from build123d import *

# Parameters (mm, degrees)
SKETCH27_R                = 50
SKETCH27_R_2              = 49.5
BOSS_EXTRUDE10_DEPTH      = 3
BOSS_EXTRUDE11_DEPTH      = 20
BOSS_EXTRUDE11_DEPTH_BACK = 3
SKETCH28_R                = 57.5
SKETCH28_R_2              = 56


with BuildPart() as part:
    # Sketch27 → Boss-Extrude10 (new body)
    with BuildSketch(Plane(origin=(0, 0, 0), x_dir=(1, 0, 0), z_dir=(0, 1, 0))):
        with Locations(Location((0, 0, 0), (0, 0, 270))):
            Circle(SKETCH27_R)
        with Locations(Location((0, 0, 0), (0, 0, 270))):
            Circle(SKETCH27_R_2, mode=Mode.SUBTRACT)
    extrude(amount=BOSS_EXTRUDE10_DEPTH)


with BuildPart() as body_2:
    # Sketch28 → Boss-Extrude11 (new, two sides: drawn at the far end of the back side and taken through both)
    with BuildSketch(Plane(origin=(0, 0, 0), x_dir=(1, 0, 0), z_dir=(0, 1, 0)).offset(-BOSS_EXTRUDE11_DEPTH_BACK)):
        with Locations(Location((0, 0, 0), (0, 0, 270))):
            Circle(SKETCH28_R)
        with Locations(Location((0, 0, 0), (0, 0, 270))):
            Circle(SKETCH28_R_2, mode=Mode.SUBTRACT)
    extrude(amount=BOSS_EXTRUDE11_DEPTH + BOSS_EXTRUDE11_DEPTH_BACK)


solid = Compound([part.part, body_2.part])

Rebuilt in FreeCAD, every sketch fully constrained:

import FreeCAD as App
import Part
import Sketcher

doc = App.newDocument("Part")
body = doc.addObject("PartDesign::Body", "Body")

sketch1 = body.newObject("Sketcher::SketchObject", "Sketch")
sketch1.AttachmentSupport = (doc.getObject("XZ_Plane"), [""])
sketch1.MapMode = "FlatFace"
sketch1.addGeometry(Part.Circle(App.Vector(0, 0, 0), App.Vector(0, 0, 1), 50), False)
sketch1.addGeometry(Part.Circle(App.Vector(0, 0, 0), App.Vector(0, 0, 1), 49.5), False)
sketch1.addConstraint(Sketcher.Constraint("Coincident", 0, 3, -1, 1))
sketch1.addConstraint(Sketcher.Constraint("Coincident", 1, 3, -1, 1))
sketch1.addConstraint(Sketcher.Constraint("Diameter", 0, 100.0))
sketch1.addConstraint(Sketcher.Constraint("Diameter", 1, 99.0))
pad1 = body.newObject("PartDesign::Pad", "Pad")
pad1.Profile = sketch1
pad1.Length = 3
pad1.Reversed = True
body2 = doc.addObject("PartDesign::Body", "Body001")

sketch2 = body2.newObject("Sketcher::SketchObject", "Sketch001")
sketch2.AttachmentSupport = (doc.getObject("XZ_Plane001"), [""])
sketch2.MapMode = "FlatFace"
sketch2.addGeometry(Part.Circle(App.Vector(0, 0, 0), App.Vector(0, 0, 1), 57.5), False)
sketch2.addGeometry(Part.Circle(App.Vector(0, 0, 0), App.Vector(0, 0, 1), 56), False)
sketch2.addConstraint(Sketcher.Constraint("Coincident", 0, 3, -1, 1))
sketch2.addConstraint(Sketcher.Constraint("Coincident", 1, 3, -1, 1))
sketch2.addConstraint(Sketcher.Constraint("Diameter", 0, 115.0))
sketch2.addConstraint(Sketcher.Constraint("Diameter", 1, 112.0))
pad2 = body2.newObject("PartDesign::Pad", "Pad001")
pad2.Profile = sketch2
pad2.Type = "TwoLengths"
pad2.Length = 20
pad2.Length2 = 3
pad2.Reversed = True

doc.recompute()
